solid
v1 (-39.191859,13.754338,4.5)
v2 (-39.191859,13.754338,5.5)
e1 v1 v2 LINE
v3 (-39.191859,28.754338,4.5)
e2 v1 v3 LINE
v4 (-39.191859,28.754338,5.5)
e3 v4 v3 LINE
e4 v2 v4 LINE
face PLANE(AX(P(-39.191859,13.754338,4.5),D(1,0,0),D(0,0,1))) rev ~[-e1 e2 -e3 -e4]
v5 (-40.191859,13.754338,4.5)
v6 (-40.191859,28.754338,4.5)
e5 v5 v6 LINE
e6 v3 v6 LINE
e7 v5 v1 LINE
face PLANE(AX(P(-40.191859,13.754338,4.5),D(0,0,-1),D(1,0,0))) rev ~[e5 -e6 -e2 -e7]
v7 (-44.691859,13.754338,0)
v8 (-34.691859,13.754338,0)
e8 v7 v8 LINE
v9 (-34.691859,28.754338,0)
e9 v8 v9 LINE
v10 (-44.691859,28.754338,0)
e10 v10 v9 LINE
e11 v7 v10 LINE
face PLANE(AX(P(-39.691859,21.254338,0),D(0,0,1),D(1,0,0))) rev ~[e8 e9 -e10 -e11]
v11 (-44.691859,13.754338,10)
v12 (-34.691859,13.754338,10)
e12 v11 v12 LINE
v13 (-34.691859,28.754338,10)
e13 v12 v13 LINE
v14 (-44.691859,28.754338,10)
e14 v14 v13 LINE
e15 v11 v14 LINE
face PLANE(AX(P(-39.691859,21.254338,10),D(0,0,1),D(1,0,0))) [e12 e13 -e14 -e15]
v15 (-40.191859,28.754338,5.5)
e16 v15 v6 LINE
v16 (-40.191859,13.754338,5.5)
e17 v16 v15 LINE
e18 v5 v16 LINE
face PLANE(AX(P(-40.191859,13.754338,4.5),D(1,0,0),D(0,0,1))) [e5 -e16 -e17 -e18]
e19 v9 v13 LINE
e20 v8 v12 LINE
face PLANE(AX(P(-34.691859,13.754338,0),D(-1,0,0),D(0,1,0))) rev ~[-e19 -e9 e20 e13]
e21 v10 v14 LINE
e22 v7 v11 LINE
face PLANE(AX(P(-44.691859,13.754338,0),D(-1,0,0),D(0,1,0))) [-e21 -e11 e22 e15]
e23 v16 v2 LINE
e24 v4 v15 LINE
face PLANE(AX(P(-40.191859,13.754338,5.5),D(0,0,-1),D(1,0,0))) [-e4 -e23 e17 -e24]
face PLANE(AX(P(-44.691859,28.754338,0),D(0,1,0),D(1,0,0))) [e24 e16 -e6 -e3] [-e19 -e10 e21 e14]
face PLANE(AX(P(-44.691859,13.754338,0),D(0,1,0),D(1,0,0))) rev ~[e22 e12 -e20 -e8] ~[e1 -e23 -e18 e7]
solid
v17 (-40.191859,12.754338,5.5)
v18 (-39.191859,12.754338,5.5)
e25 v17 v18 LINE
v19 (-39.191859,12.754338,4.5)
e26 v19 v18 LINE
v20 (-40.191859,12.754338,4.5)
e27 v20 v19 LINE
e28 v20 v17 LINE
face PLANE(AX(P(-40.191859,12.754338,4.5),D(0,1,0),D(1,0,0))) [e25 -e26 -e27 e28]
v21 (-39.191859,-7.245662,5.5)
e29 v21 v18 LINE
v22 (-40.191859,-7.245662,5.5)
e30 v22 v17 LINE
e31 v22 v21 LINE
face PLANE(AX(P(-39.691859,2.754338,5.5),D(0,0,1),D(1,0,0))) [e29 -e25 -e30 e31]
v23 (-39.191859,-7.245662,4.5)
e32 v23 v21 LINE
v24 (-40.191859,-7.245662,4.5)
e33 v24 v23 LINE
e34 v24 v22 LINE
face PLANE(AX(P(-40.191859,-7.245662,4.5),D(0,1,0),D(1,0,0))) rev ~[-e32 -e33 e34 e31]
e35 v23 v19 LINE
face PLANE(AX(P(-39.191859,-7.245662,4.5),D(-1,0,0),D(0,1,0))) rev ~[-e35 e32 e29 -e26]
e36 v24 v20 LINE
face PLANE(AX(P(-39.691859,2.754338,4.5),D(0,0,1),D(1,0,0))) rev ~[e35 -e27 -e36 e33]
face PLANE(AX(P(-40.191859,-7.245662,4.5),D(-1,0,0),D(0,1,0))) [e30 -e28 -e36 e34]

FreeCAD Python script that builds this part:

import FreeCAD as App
import Part
import Sketcher

doc = App.newDocument("Part")
body = doc.addObject("PartDesign::Body", "Body")

# Sketch on XY plane
sketch1 = doc.addObject("Sketcher::SketchObject", "Sketch")
body.addObject(sketch1)
sketch1.AttachmentSupport = (doc.XY_Plane, [""])
sketch1.MapMode = "FlatFace"
sketch1.addGeometry([
    Part.LineSegment(App.Vector(-40.2, 12.8, 0), App.Vector(-40.2, -7.2, 0)),
    Part.LineSegment(App.Vector(-40.2, -7.2, 0), App.Vector(-39.2, -7.2, 0)),
    Part.LineSegment(App.Vector(-39.2, -7.2, 0), App.Vector(-39.2, 12.8, 0)),
    Part.LineSegment(App.Vector(-39.2, 12.8, 0), App.Vector(-40.2, 12.8, 0)),
], False)
sketch1.addConstraint([
    Sketcher.Constraint("Coincident", 0, 2, 1, 1),
    Sketcher.Constraint("Coincident", 1, 2, 2, 1),
    Sketcher.Constraint("Coincident", 2, 2, 3, 1),
    Sketcher.Constraint("Coincident", 3, 2, 0, 1),
    Sketcher.Constraint("Vertical", 0),
    Sketcher.Constraint("Horizontal", 1),
    Sketcher.Constraint("Vertical", 2),
    Sketcher.Constraint("Horizontal", 3),
    Sketcher.Constraint("DistanceX", 1, 1, 1, 2, 1.0),
    Sketcher.Constraint("DistanceY", 0, 2, 0, 1, 20.0),
    Sketcher.Constraint("DistanceX", 0, 2, -1, 1, 40.191859),
    Sketcher.Constraint("DistanceY", -1, 1, 2, 2, 12.754338),
])
pad1 = doc.addObject("PartDesign::Pad", "Pad")
body.addObject(pad1)
pad1.Profile = sketch1
pad1.Length = 1
body2 = doc.addObject("PartDesign::Body", "Body001")

# Sketch on XY plane
sketch2 = doc.addObject("Sketcher::SketchObject", "Sketch001")
body2.addObject(sketch2)
sketch2.AttachmentSupport = (doc.getObject("XY_Plane001"), [""])
sketch2.MapMode = "FlatFace"
sketch2.addGeometry([
    Part.LineSegment(App.Vector(-45, 29, 0), App.Vector(-45, 14, 0)),
    Part.LineSegment(App.Vector(-45, 14, 0), App.Vector(-35, 14, 0)),
    Part.LineSegment(App.Vector(-35, 14, 0), App.Vector(-35, 29, 0)),
    Part.LineSegment(App.Vector(-35, 29, 0), App.Vector(-45, 29, 0)),
], False)
sketch2.addConstraint([
    Sketcher.Constraint("Coincident", 0, 2, 1, 1),
    Sketcher.Constraint("Coincident", 1, 2, 2, 1),
    Sketcher.Constraint("Coincident", 2, 2, 3, 1),
    Sketcher.Constraint("Coincident", 3, 2, 0, 1),
    Sketcher.Constraint("Vertical", 0),
    Sketcher.Constraint("Horizontal", 1),
    Sketcher.Constraint("Vertical", 2),
    Sketcher.Constraint("Horizontal", 3),
    Sketcher.Constraint("DistanceX", 1, 1, 1, 2, 10.0),
    Sketcher.Constraint("DistanceY", 0, 2, 0, 1, 15.0),
    Sketcher.Constraint("DistanceX", 0, 2, -1, 1, 44.691859),
    Sketcher.Constraint("DistanceY", -1, 1, 0, 2, 13.754338),
])
pad2 = doc.addObject("PartDesign::Pad", "Pad001")
body2.addObject(pad2)
pad2.Profile = sketch2
pad2.Length = 10

# Sketch on XZ plane
sketch3 = doc.addObject("Sketcher::SketchObject", "Sketch002")
body2.addObject(sketch3)
sketch3.AttachmentSupport = (doc.getObject("XZ_Plane001"), [""])
sketch3.MapMode = "FlatFace"
sketch3.AttachmentOffset = App.Placement(App.Vector(0, 0, -13.754338), App.Rotation())
sketch3.addGeometry([
    Part.LineSegment(App.Vector(-40.2, 5.5, 0), App.Vector(-40.2, 4.5, 0)),
    Part.LineSegment(App.Vector(-40.2, 4.5, 0), App.Vector(-39.2, 4.5, 0)),
    Part.LineSegment(App.Vector(-39.2, 4.5, 0), App.Vector(-39.2, 5.5, 0)),
    Part.LineSegment(App.Vector(-39.2, 5.5, 0), App.Vector(-40.2, 5.5, 0)),
], False)
sketch3.addConstraint([
    Sketcher.Constraint("Coincident", 0, 2, 1, 1),
    Sketcher.Constraint("Coincident", 1, 2, 2, 1),
    Sketcher.Constraint("Coincident", 2, 2, 3, 1),
    Sketcher.Constraint("Coincident", 3, 2, 0, 1),
    Sketcher.Constraint("Vertical", 0),
    Sketcher.Constraint("Horizontal", 1),
    Sketcher.Constraint("Vertical", 2),
    Sketcher.Constraint("Horizontal", 3),
    Sketcher.Constraint("Equal", 3, 0),
    Sketcher.Constraint("DistanceX", 1, 1, 1, 2, 1.0),
    Sketcher.Constraint("DistanceY", -1, 1, 0, 2, 4.5),
    Sketcher.Constraint("DistanceX", 0, 2, -1, 1, 40.191859),
])
pocket1 = doc.addObject("PartDesign::Pocket", "Pocket")
body2.addObject(pocket1)
pocket1.Profile = sketch3
pocket1.Length = 25
body3 = doc.addObject("PartDesign::Body", "Body002")
doc.recompute()

body.Placement = App.Placement(App.Vector(0, 0, 4.5), App.Rotation(App.Vector(0, 0, 1), 0))
boolean = doc.addObject("PartDesign::Boolean", "Boolean")
body3.addObject(boolean)
boolean.Type = "Fuse"
boolean.addObjects([body])

doc.recompute()
